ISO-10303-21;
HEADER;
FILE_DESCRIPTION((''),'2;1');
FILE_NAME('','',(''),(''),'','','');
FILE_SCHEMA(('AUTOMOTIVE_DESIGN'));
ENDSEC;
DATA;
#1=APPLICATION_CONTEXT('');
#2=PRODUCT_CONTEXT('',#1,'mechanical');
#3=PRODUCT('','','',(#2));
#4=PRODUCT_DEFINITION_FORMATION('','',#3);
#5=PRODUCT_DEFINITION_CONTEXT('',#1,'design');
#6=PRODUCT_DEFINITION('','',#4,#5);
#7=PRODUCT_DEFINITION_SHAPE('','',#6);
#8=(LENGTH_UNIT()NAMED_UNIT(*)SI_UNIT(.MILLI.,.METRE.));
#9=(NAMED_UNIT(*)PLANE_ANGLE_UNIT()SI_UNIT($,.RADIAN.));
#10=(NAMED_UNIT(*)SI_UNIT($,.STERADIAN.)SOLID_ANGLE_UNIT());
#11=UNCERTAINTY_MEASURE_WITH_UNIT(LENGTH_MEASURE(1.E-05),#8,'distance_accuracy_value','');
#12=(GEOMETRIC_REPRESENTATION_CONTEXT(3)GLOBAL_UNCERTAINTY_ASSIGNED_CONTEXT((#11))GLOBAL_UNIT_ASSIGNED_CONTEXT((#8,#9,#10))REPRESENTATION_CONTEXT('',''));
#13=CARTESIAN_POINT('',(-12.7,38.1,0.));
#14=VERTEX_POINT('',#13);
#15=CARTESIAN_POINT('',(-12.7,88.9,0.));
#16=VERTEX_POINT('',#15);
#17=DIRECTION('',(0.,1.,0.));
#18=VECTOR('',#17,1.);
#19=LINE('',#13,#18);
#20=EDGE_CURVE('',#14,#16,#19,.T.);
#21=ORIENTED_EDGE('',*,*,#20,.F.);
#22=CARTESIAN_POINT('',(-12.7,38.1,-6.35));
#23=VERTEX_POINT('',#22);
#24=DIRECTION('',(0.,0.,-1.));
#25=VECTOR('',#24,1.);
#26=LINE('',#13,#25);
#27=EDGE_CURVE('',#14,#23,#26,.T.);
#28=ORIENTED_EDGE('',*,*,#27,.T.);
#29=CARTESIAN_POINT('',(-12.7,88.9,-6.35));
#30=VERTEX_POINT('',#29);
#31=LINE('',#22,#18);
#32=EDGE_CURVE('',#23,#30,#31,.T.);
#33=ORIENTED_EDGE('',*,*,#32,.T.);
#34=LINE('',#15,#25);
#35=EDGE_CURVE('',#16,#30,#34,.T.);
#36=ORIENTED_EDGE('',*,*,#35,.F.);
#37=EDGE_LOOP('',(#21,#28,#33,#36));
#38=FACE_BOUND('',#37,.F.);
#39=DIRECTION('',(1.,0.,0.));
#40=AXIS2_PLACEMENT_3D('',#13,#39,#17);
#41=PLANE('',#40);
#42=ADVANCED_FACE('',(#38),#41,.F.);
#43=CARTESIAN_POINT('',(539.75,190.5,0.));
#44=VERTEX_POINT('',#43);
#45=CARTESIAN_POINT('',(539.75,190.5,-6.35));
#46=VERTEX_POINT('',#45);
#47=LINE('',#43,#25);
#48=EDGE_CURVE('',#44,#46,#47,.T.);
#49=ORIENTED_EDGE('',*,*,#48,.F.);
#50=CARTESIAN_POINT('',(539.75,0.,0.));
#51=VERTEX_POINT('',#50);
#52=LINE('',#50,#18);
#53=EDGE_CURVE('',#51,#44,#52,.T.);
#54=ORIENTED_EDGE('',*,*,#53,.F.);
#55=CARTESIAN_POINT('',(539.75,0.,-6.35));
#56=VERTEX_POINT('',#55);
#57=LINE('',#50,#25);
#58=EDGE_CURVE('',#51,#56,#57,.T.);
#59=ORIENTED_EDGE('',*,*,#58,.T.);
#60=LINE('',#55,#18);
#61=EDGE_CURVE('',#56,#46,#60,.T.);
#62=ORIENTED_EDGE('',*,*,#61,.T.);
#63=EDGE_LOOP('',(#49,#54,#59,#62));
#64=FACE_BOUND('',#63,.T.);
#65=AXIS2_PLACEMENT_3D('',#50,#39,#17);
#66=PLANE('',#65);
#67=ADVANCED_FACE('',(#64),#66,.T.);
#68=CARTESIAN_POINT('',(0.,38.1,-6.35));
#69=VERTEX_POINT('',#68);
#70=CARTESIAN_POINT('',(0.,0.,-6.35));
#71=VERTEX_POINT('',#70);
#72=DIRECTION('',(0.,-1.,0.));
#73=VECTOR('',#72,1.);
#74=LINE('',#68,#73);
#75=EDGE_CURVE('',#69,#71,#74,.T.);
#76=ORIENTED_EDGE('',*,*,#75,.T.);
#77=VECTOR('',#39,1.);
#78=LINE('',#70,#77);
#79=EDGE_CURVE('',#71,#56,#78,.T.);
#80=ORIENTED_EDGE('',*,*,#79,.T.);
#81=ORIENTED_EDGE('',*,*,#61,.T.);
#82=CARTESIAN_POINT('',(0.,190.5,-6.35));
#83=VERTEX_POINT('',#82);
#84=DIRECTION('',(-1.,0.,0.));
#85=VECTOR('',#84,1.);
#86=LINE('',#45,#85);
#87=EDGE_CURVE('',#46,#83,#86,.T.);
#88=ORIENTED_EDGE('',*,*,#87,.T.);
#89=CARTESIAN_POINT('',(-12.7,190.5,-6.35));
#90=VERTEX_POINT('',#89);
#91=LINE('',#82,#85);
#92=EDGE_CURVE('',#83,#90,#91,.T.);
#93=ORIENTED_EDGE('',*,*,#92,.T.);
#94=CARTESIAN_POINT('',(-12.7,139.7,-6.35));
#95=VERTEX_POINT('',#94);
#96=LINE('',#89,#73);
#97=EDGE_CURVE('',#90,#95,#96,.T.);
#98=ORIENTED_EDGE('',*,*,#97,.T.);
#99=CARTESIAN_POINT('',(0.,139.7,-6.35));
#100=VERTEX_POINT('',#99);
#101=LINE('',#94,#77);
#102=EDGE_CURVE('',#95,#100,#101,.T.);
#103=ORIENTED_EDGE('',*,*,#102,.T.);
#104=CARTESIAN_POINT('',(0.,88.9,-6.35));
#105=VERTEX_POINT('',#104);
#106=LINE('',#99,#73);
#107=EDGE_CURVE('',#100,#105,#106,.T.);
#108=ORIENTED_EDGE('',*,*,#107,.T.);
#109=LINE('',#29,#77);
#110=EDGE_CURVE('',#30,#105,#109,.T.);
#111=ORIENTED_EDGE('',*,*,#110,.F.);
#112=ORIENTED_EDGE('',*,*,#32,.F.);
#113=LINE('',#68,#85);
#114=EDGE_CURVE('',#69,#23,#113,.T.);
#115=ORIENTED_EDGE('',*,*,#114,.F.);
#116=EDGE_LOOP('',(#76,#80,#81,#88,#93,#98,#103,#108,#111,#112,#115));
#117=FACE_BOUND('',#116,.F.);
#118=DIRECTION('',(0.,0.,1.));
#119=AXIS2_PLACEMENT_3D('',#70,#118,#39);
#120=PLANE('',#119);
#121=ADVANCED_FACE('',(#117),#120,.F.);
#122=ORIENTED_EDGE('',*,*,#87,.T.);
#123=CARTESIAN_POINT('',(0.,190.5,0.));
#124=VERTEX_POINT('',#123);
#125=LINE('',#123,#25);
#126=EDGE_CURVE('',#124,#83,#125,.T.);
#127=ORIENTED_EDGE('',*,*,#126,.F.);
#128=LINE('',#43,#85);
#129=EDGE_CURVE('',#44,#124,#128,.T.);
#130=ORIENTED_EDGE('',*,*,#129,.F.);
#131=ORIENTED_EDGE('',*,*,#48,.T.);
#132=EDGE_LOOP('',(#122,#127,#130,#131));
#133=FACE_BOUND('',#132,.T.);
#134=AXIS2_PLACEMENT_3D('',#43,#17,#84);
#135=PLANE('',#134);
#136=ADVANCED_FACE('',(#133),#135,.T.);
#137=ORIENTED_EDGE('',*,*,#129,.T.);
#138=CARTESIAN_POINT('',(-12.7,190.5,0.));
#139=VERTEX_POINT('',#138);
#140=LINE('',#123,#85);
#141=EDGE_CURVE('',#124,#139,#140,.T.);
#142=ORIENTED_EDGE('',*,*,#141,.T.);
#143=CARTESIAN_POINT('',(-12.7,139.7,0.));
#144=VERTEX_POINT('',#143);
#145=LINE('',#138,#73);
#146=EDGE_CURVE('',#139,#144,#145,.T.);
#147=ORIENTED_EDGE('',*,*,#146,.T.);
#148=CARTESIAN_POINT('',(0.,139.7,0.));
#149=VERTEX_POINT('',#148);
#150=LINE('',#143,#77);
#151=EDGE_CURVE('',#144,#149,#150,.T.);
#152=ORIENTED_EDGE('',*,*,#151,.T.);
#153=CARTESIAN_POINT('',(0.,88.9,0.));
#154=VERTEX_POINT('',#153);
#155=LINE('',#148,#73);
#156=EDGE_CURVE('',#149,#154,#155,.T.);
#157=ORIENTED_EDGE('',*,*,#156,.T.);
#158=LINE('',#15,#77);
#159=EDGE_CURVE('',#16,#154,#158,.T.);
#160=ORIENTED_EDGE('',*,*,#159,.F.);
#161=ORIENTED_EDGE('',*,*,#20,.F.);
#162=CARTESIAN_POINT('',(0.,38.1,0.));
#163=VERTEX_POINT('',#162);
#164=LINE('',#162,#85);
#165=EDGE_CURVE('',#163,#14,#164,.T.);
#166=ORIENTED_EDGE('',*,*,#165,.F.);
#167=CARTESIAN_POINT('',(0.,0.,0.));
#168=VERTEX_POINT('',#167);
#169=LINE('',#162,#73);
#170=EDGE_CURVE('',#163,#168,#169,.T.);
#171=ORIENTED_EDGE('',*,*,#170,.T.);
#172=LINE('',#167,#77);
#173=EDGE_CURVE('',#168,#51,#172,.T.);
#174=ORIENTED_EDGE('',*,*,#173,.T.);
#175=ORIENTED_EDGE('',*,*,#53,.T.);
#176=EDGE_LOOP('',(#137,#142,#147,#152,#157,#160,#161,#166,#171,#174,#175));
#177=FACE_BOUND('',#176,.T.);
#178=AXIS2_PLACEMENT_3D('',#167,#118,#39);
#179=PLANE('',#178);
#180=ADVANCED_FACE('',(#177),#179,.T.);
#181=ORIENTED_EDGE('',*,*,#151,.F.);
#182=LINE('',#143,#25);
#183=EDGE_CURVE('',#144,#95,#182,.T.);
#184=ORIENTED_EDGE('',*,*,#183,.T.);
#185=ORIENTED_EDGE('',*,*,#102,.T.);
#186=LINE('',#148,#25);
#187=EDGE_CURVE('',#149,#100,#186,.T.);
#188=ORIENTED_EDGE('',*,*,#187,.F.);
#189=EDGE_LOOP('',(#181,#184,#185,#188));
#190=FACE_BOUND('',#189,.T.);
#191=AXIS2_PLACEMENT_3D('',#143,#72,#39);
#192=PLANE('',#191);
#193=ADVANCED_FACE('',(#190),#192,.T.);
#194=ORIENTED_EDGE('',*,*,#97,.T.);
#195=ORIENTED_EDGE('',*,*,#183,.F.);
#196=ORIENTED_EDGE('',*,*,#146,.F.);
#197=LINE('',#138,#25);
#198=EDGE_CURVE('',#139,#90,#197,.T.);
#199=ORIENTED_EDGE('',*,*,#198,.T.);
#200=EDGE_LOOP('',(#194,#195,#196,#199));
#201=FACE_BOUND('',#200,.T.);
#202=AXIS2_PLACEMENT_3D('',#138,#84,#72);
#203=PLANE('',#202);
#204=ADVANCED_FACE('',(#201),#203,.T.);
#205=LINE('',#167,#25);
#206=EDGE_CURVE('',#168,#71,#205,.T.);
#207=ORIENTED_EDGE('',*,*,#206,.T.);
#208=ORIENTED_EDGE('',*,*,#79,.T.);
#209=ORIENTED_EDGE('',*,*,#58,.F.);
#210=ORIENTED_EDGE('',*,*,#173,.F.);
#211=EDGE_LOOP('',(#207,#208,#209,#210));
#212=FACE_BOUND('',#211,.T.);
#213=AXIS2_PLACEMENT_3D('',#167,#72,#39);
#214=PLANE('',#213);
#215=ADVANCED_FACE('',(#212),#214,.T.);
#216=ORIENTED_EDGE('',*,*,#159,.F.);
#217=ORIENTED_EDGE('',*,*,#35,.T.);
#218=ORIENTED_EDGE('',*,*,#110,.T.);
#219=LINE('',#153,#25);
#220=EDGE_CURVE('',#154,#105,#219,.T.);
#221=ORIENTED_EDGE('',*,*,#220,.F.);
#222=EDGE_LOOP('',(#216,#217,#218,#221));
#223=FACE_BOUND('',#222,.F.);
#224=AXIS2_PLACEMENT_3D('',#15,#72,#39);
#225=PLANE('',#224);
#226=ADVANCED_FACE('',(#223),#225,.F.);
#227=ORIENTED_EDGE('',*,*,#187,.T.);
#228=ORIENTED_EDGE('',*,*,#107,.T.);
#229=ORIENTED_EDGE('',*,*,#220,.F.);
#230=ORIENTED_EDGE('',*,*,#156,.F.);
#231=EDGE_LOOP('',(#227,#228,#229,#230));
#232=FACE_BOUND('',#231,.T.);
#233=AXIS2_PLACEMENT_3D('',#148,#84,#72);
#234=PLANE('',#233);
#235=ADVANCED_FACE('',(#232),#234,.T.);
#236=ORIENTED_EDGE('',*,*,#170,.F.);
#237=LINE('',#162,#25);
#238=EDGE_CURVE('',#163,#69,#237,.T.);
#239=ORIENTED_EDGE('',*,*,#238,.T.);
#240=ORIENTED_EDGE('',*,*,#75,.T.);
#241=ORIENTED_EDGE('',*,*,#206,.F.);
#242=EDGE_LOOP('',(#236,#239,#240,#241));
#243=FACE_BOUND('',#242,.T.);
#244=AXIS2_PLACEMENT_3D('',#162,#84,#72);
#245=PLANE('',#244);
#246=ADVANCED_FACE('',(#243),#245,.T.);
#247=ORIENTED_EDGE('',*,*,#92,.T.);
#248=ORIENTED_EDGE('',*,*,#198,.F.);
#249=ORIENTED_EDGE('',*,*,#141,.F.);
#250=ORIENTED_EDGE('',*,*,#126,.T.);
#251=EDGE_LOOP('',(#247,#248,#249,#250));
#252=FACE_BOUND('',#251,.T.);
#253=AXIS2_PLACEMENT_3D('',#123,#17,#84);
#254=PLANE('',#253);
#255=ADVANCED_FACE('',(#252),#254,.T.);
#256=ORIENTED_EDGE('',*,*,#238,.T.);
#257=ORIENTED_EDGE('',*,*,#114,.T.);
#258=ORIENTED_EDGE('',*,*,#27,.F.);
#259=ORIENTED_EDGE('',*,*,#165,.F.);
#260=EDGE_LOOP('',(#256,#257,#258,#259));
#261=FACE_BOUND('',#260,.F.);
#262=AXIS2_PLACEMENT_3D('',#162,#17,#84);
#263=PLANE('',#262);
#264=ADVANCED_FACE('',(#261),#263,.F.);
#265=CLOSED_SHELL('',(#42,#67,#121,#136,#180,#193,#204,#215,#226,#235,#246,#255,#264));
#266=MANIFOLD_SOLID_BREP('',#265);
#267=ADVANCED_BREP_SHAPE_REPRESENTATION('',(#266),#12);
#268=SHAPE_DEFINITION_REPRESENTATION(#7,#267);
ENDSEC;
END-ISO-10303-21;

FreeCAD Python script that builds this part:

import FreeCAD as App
import Part
import Sketcher

V = App.Vector
Q = App.Units.Quantity


def add_polygon(sketch, points):
    """Adds a closed chain of lines whose ends are joined by coincident constraints."""
    first, n = sketch.GeometryCount, len(points)
    for a, b in zip(points, points[1:] + points[:1]):
        sketch.addGeometry(Part.LineSegment(App.Vector(*a, 0), App.Vector(*b, 0)), False)
    for i in range(n):
        sketch.addConstraint(Sketcher.Constraint("Coincident", first + i, 2, first + (i + 1) % n, 1))

doc = App.newDocument("Part")
params = doc.addObject("Spreadsheet::Sheet", "Params")
for row, (alias, value) in enumerate([
    ("sketch1_height", "2 in"),
    ("sketch1_width", "0.5 in"),
    ("sketch1_height2", "7.5 in"),
    ("sketch1_width2", "21.25 in"),
    ("pad1_length", "0.25 in"),
], start=1):
    params.set(f"A{row}", alias)
    params.set(f"B{row}", "=" + value)
    params.setAlias(f"B{row}", alias)

body = doc.addObject("PartDesign::Body", "Body")

# Sketch on XY plane
sketch1 = body.newObject("Sketcher::SketchObject", "Sketch")
sketch1.AttachmentSupport = (doc.getObject("XY_Plane"), [""])
sketch1.MapMode = "FlatFace"
add_polygon(sketch1, [(0, 38.1), (0, 0), (539.75, 0), (539.75, 190.5), (-12.7, 190.5), (-12.7, 139.7), (0, 139.7), (0, 88.9), (-12.7, 88.9), (-12.7, 38.1)])  # lines 0-9
sketch1.addConstraint([
    Sketcher.Constraint("Vertical", 0),
    Sketcher.Constraint("Horizontal", 1),
    Sketcher.Constraint("Vertical", 2),
    Sketcher.Constraint("Horizontal", 3),
    Sketcher.Constraint("Vertical", 4),
    Sketcher.Constraint("Horizontal", 5),
    Sketcher.Constraint("Vertical", 6),
    Sketcher.Constraint("Horizontal", 7),
    Sketcher.Constraint("Vertical", 8),
    Sketcher.Constraint("Horizontal", 9),
    Sketcher.Constraint("Coincident", 0, 2, -1, 1),
    Sketcher.Constraint("PointOnObject", 5, 2, -2),
    Sketcher.Constraint("Vertical", 4, 2, 7, 2),
    Sketcher.Constraint("Equal", 4, 6),
    Sketcher.Constraint("Equal", 6, 8),
    Sketcher.Constraint("DistanceY", 4, 2, 4, 1, Q("2 in")),
    Sketcher.Constraint("DistanceX", 5, 1, 5, 2, Q("0.5 in")),
    Sketcher.Constraint("DistanceY", 2, 1, 2, 2, Q("7.5 in")),
    Sketcher.Constraint("DistanceX", 1, 1, 1, 2, Q("21.25 in")),
])
sketch1.setExpression("Constraints[25]", "Params.sketch1_height")
sketch1.setExpression("Constraints[26]", "Params.sketch1_width")
sketch1.setExpression("Constraints[27]", "Params.sketch1_height2")
sketch1.setExpression("Constraints[28]", "Params.sketch1_width2")
pad1 = body.newObject("PartDesign::Pad", "Pad")
pad1.Profile = sketch1
pad1.setExpression("Length", "Params.pad1_length")
pad1.Reversed = True

doc.recompute()
